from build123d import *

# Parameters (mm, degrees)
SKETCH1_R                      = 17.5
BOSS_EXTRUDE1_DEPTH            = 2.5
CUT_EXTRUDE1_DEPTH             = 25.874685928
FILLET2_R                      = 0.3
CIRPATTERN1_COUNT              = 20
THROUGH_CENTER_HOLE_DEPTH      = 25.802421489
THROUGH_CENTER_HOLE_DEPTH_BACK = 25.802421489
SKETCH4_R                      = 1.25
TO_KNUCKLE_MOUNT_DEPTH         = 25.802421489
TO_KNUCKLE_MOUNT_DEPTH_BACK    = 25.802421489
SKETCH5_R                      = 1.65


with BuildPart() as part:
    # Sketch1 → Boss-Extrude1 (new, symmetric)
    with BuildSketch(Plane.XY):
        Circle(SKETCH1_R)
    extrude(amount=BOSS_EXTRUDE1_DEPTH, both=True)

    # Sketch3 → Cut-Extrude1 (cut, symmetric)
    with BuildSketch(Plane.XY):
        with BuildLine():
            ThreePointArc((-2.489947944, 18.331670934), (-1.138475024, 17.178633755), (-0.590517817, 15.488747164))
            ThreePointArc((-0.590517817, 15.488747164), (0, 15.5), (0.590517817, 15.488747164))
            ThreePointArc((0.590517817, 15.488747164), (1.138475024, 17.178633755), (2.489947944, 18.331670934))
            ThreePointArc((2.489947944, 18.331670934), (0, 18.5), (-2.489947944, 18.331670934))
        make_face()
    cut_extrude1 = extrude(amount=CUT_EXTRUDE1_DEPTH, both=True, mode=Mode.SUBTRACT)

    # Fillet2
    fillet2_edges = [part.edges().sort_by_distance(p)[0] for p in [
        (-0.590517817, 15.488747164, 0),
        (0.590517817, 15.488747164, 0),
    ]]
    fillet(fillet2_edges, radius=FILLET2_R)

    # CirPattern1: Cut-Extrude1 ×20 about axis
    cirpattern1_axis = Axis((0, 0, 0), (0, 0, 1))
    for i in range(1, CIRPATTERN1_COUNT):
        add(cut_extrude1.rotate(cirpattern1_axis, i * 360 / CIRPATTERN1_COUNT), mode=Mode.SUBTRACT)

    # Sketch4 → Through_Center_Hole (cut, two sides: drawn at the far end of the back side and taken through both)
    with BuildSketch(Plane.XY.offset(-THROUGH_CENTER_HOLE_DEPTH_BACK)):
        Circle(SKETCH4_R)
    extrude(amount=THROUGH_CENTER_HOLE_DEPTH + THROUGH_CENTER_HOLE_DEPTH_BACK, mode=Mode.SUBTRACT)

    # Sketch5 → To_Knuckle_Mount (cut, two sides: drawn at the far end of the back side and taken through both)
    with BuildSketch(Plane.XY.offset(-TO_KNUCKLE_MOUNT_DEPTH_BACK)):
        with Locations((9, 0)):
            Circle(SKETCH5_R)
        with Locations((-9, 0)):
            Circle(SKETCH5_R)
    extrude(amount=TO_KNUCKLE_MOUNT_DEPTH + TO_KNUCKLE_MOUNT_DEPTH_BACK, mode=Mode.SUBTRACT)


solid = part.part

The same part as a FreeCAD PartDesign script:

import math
import FreeCAD as App
import Part
import Sketcher

V = App.Vector


def edges_at(feature, points):
    """Names of the edges that pass closest to the given points."""
    edges = feature.Shape.Edges
    near = lambda p: min(range(len(edges)), key=lambda i: edges[i].distToShape(Part.Vertex(*p))[0])
    return sorted({f"Edge{near(p) + 1}" for p in points})

doc = App.newDocument("Part")
body = doc.addObject("PartDesign::Body", "Body")

# Sketch on XY plane
sketch1 = body.newObject("Sketcher::SketchObject", "Sketch")
sketch1.AttachmentSupport = (doc.getObject("XY_Plane"), [""])
sketch1.MapMode = "FlatFace"
sketch1.addGeometry(Part.Circle(V(0, 0, 0), V(0, 0, 1), 18), False)
sketch1.addConstraint(Sketcher.Constraint("Coincident", 0, 3, -1, 1))
sketch1.addConstraint(Sketcher.Constraint("Diameter", 0, 35.0))
pad1 = body.newObject("PartDesign::Pad", "Pad")
pad1.Profile = sketch1
pad1.Length = 5
pad1.Midplane = True

# Sketch on XY plane
sketch2 = body.newObject("Sketcher::SketchObject", "Sketch001")
sketch2.AttachmentSupport = (doc.getObject("XY_Plane"), [""])
sketch2.MapMode = "FlatFace"
sketch2.addGeometry(Part.ArcOfCircle(Part.Circle(V(-3.9, 15.4, 0), V(0, 0, 1), 3.3), math.radians(2), math.radians(65)), False)
sketch2.addGeometry(Part.ArcOfCircle(Part.Circle(V(0, 0, 0), V(0, 0, 1), 15.5), math.radians(87.82), math.radians(92.18)), False)
sketch2.addGeometry(Part.ArcOfCircle(Part.Circle(V(3.9, 15.4, 0), V(0, 0, 1), 3.3), math.radians(115), math.radians(178)), False)
sketch2.addGeometry(Part.ArcOfCircle(Part.Circle(V(0, 0, 0), V(0, 0, 1), 18.5), math.radians(82.26), math.radians(97.74)), False)
sketch2.addConstraint(Sketcher.Constraint("Coincident", 0, 1, 1, 2))
sketch2.addConstraint(Sketcher.Constraint("Coincident", 1, 1, 2, 2))
sketch2.addConstraint(Sketcher.Constraint("Coincident", 2, 1, 3, 1))
sketch2.addConstraint(Sketcher.Constraint("Coincident", 3, 2, 0, 2))
sketch2.addConstraint(Sketcher.Constraint("Coincident", 1, 3, -1, 1))
sketch2.addConstraint(Sketcher.Constraint("Coincident", 3, 3, -1, 1))
sketch2.addConstraint(Sketcher.Constraint("Equal", 0, 2))
sketch2.addConstraint(Sketcher.Constraint("Symmetric", 0, 3, 2, 3, -2))
sketch2.addConstraint(Sketcher.Constraint("Radius", 1, 15.5))
sketch2.addConstraint(Sketcher.Constraint("Radius", 3, 18.5))
sketch2.addConstraint(Sketcher.Constraint("Radius", 0, 3.265849))
sketch2.addConstraint(Sketcher.Constraint("DistanceY", -1, 1, 2, 1, 18.331671))
sketch2.addConstraint(Sketcher.Constraint("DistanceX", 0, 3, 2, 3, 7.707991))
pocket1 = body.newObject("PartDesign::Pocket", "Pocket")
pocket1.Profile = sketch2
pocket1.Length = 51.749372
pocket1.Midplane = True
doc.recompute()

fillet = body.newObject("PartDesign::Fillet", "Fillet")
fillet.Base = (pocket1, edges_at(pocket1, [(-0.591, 15.489, 0), (0.591, 15.489, 0)]))
fillet.Radius = 0.3
doc.recompute()

polarpattern = body.newObject("PartDesign::PolarPattern", "PolarPattern")
polarpattern.Originals = [pocket1]
polarpattern.Axis = (doc.getObject("Z_Axis"), [""])
polarpattern.Angle = 360
polarpattern.Occurrences = 20
body.Tip = polarpattern

# Sketch on XY plane
sketch3 = body.newObject("Sketcher::SketchObject", "Sketch002")
sketch3.AttachmentSupport = (doc.getObject("XY_Plane"), [""])
sketch3.MapMode = "FlatFace"
sketch3.addGeometry(Part.Circle(V(0, 0, 0), V(0, 0, 1), 1.2), False)
sketch3.addConstraint(Sketcher.Constraint("Coincident", 0, 3, -1, 1))
sketch3.addConstraint(Sketcher.Constraint("Diameter", 0, 2.5))
pocket2 = body.newObject("PartDesign::Pocket", "Pocket001")
pocket2.Profile = sketch3
pocket2.Type = "ThroughAll"
pocket2.Midplane = True

# Sketch on XY plane
sketch4 = body.newObject("Sketcher::SketchObject", "Sketch003")
sketch4.AttachmentSupport = (doc.getObject("XY_Plane"), [""])
sketch4.MapMode = "FlatFace"
sketch4.addGeometry(Part.Circle(V(9, 0, 0), V(0, 0, 1), 1.6), False)
sketch4.addGeometry(Part.Circle(V(-9, 0, 0), V(0, 0, 1), 1.6), False)
sketch4.addConstraint(Sketcher.Constraint("Equal", 0, 1))
sketch4.addConstraint(Sketcher.Constraint("Symmetric", 0, 3, 1, 3, -1, 1))
sketch4.addConstraint(Sketcher.Constraint("PointOnObject", 0, 3, -1))
sketch4.addConstraint(Sketcher.Constraint("Diameter", 0, 3.3))
sketch4.addConstraint(Sketcher.Constraint("DistanceX", -1, 1, 0, 3, 9.0))
pocket3 = body.newObject("PartDesign::Pocket", "Pocket002")
pocket3.Profile = sketch4
pocket3.Type = "ThroughAll"
pocket3.Midplane = True

doc.recompute()
